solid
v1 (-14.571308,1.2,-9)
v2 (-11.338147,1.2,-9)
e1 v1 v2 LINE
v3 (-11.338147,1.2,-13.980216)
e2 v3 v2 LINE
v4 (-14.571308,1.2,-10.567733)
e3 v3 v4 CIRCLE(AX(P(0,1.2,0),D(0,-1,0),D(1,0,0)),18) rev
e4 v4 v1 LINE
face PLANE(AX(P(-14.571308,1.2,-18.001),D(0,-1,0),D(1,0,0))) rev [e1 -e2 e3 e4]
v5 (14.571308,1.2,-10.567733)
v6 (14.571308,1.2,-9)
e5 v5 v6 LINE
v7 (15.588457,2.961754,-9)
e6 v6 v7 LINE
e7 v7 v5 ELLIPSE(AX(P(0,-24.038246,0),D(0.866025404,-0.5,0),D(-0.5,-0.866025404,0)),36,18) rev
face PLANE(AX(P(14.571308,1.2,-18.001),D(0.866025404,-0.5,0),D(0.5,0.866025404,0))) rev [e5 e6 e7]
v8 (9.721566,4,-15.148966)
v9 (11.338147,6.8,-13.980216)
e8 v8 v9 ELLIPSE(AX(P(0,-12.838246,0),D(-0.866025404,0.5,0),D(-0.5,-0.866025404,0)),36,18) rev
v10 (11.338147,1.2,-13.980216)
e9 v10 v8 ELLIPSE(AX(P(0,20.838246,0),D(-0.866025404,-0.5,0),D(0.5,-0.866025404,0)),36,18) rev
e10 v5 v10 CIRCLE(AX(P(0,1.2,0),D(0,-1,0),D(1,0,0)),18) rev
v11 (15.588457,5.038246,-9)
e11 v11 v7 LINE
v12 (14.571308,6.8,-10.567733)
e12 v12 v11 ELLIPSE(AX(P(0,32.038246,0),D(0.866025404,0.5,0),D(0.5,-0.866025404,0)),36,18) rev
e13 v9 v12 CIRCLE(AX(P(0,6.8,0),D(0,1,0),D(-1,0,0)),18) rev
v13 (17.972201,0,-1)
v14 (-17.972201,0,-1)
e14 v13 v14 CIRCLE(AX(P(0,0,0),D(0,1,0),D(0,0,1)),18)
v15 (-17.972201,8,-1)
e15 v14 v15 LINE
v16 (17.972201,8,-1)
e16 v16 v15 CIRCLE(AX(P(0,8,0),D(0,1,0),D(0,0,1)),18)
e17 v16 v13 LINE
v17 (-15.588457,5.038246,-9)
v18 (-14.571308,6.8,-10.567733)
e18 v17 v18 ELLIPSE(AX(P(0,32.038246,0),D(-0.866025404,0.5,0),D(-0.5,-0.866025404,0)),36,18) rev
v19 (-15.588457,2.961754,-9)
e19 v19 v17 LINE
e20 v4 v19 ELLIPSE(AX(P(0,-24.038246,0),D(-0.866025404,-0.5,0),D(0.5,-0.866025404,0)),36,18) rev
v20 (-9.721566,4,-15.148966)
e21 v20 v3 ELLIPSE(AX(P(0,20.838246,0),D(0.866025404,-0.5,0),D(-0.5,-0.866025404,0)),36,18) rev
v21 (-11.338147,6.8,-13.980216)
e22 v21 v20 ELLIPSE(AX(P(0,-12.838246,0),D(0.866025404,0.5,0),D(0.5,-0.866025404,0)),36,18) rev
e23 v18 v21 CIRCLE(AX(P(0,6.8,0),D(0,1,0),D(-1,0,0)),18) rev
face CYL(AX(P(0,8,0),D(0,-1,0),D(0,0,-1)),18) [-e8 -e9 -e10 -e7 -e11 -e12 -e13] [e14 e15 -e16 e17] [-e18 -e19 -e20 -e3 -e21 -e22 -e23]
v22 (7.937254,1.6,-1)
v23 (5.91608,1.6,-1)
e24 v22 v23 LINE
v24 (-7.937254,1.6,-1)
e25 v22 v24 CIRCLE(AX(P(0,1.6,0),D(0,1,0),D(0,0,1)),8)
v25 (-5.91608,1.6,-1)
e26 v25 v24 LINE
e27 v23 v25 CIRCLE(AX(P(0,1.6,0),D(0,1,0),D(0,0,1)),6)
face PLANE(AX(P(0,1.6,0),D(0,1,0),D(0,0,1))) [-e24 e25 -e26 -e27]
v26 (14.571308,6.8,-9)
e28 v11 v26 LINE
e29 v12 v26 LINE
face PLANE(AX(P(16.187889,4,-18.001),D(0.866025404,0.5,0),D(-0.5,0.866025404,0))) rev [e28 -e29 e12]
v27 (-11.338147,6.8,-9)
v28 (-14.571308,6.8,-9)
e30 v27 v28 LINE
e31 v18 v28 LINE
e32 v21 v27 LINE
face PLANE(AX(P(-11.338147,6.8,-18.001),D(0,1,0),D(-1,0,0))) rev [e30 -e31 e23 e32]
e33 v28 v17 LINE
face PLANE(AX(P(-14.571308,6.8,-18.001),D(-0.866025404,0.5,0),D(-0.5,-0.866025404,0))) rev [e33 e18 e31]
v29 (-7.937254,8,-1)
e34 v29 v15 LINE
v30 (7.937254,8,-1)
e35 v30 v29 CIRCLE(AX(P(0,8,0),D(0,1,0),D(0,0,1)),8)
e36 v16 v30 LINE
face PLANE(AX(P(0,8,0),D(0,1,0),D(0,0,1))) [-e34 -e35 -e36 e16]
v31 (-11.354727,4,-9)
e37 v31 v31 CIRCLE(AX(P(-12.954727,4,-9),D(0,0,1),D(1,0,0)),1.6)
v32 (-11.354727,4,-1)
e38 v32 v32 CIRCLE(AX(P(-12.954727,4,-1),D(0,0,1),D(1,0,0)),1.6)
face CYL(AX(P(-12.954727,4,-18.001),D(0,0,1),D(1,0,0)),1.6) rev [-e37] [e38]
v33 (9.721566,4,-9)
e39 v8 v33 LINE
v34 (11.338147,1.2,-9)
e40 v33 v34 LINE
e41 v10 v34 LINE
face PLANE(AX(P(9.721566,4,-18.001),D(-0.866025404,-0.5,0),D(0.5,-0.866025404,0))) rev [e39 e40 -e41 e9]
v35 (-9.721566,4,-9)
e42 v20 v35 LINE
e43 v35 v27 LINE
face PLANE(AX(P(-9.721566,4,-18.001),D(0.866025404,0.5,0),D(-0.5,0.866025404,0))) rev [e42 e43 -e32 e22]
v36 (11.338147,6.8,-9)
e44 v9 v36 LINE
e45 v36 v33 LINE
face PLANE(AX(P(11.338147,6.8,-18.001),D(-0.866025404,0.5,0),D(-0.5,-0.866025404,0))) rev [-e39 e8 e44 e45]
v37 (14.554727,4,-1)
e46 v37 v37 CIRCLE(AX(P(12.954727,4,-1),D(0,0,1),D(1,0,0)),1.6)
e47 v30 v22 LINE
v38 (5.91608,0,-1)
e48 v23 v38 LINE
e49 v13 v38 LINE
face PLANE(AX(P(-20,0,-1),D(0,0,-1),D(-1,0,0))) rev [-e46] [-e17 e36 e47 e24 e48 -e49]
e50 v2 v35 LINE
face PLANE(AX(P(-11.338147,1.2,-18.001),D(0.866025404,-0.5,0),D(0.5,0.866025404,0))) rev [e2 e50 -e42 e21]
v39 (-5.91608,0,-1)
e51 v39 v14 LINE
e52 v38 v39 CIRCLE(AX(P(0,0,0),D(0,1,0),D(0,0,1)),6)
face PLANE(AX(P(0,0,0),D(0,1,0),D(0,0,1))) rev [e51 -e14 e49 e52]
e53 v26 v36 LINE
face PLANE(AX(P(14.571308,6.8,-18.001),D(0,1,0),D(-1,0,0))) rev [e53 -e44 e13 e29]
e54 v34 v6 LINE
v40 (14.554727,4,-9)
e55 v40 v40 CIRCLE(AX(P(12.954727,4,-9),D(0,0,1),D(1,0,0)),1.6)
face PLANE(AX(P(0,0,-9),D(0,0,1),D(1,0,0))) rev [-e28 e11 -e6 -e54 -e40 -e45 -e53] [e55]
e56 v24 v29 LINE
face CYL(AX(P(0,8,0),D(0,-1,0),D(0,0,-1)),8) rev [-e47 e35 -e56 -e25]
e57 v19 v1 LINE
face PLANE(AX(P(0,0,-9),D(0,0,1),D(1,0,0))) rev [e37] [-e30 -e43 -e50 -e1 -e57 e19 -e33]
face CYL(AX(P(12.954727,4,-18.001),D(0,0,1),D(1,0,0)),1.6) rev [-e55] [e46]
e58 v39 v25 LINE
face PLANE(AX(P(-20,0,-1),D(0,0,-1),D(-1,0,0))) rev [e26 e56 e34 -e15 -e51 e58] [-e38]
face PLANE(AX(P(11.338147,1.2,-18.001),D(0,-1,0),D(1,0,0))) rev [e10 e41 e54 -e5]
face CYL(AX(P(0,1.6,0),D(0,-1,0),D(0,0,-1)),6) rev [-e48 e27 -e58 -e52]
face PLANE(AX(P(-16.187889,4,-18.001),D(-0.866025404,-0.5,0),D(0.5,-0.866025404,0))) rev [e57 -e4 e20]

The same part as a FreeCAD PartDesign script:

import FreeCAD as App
import Part
import Sketcher
from FreeCAD import Vector
Q = App.Units.Quantity


def add_polygon(sketch, points):
    """Adds a closed chain of lines whose ends are joined by coincident constraints."""
    first, n = sketch.GeometryCount, len(points)
    for a, b in zip(points, points[1:] + points[:1]):
        sketch.addGeometry(Part.LineSegment(App.Vector(*a, 0), App.Vector(*b, 0)), False)
    for i in range(n):
        sketch.addConstraint(Sketcher.Constraint("Coincident", first + i, 2, first + (i + 1) % n, 1))

doc = App.newDocument("Part")
params = doc.addObject("Spreadsheet::Sheet", "Params")
for row, (alias, value) in enumerate([
    ("sketch1_diameter", "36 mm"),
    ("sketch1_diameter2", "16 mm"),
    ("pad1_length", "8 mm"),
    ("sketch2_diameter", "16 mm"),
    ("sketch2_diameter2", "12 mm"),
    ("pad2_length", "1.6 mm"),
    ("sketch3_width", "40 mm"),
    ("sketch3_height", "20 mm"),
    ("sketch4_diameter", "3.2 mm"),
    ("sketch5_diameter", "3.2 mm"),
    ("pocket4_length", "6.148966 mm"),
    ("pocket5_length", "6.148966 mm"),
], start=1):
    params.set(f"A{row}", alias)
    params.set(f"B{row}", "=" + value)
    params.setAlias(f"B{row}", alias)

body = doc.addObject("PartDesign::Body", "Body")

sketch1 = body.newObject("Sketcher::SketchObject", "Sketch")
sketch1.AttachmentSupport = (doc.getObject("XZ_Plane"), [""])
sketch1.MapMode = "FlatFace"
sketch1.addGeometry([
    Part.Circle(Vector(0, 0, 0), Vector(0, 0, 1), 18),
    Part.Circle(Vector(0, 0, 0), Vector(0, 0, 1), 8),
], False)
sketch1.addConstraint([
    Sketcher.Constraint("Coincident", 0, 3, -1, 1),
    Sketcher.Constraint("Coincident", 1, 3, -1, 1),
    Sketcher.Constraint("Diameter", 0, Q("36 mm")),
    Sketcher.Constraint("Diameter", 1, Q("16 mm")),
])
sketch1.setExpression("Constraints[2]", "Params.sketch1_diameter")
sketch1.setExpression("Constraints[3]", "Params.sketch1_diameter2")
pad1 = body.newObject("PartDesign::Pad", "Pad")
pad1.Profile = sketch1
pad1.setExpression("Length", "Params.pad1_length")
pad1.Reversed = True

sketch2 = body.newObject("Sketcher::SketchObject", "Sketch001")
sketch2.AttachmentSupport = (doc.getObject("XZ_Plane"), [""])
sketch2.MapMode = "FlatFace"
sketch2.addGeometry([
    Part.Circle(Vector(0, 0, 0), Vector(0, 0, 1), 8),
    Part.Circle(Vector(0, 0, 0), Vector(0, 0, 1), 6),
], False)
sketch2.addConstraint([
    Sketcher.Constraint("Coincident", 0, 3, -1, 1),
    Sketcher.Constraint("Coincident", 1, 3, -1, 1),
    Sketcher.Constraint("Diameter", 0, Q("16 mm")),
    Sketcher.Constraint("Diameter", 1, Q("12 mm")),
])
sketch2.setExpression("Constraints[2]", "Params.sketch2_diameter")
sketch2.setExpression("Constraints[3]", "Params.sketch2_diameter2")
pad2 = body.newObject("PartDesign::Pad", "Pad001")
pad2.Profile = sketch2
pad2.setExpression("Length", "Params.pad2_length")
pad2.Reversed = True

sketch3 = body.newObject("Sketcher::SketchObject", "Sketch002")
sketch3.AttachmentSupport = (doc.getObject("XZ_Plane"), [""])
sketch3.MapMode = "FlatFace"
sketch3.AttachmentOffset = App.Placement(Vector(0, 0, -8), App.Rotation())
add_polygon(sketch3, [(-20, -1), (-20, 19), (20, 19), (20, -1)])
sketch3.addConstraint([
    Sketcher.Constraint("Vertical", 0),
    Sketcher.Constraint("Horizontal", 1),
    Sketcher.Constraint("Vertical", 2),
    Sketcher.Constraint("Horizontal", 3),
    Sketcher.Constraint("DistanceX", 1, 1, 1, 2, Q("40 mm")),
    Sketcher.Constraint("DistanceY", 0, 1, 0, 2, Q("20 mm")),
    Sketcher.Constraint("DistanceX", 0, 2, -1, 1, Q("20 mm")),
    Sketcher.Constraint("DistanceY", -1, 1, 0, 2, Q("19 mm")),
])
sketch3.setExpression("Constraints[8]", "Params.sketch3_width")
sketch3.setExpression("Constraints[9]", "Params.sketch3_height")
pocket1 = body.newObject("PartDesign::Pocket", "Pocket")
pocket1.Profile = sketch3
pocket1.Type = "ThroughAll"
pocket1.Reversed = True

sketch4 = body.newObject("Sketcher::SketchObject", "Sketch003")
sketch4.AttachmentSupport = (doc.getObject("XY_Plane"), [""])
sketch4.MapMode = "FlatFace"
sketch4.AttachmentOffset = App.Placement(Vector(0, 0, -1), App.Rotation())
sketch4.addGeometry(Part.Circle(Vector(-13, 4, 0), Vector(0, 0, 1), 1.6), False)
sketch4.addConstraint([
    Sketcher.Constraint("Diameter", 0, Q("3.2 mm")),
    Sketcher.Constraint("DistanceY", -1, 1, 0, 3, Q("4 mm")),
    Sketcher.Constraint("DistanceX", 0, 3, -1, 1, Q("12.954727 mm")),
])
sketch4.setExpression("Constraints[0]", "Params.sketch4_diameter")
pocket2 = body.newObject("PartDesign::Pocket", "Pocket001")
pocket2.Profile = sketch4
pocket2.Type = "UpToFirst"

sketch5 = body.newObject("Sketcher::SketchObject", "Sketch004")
sketch5.AttachmentSupport = (doc.getObject("XY_Plane"), [""])
sketch5.MapMode = "FlatFace"
sketch5.AttachmentOffset = App.Placement(Vector(0, 0, -1), App.Rotation())
sketch5.addGeometry(Part.Circle(Vector(13, 4, 0), Vector(0, 0, 1), 1.6), False)
sketch5.addConstraint([
    Sketcher.Constraint("Diameter", 0, Q("3.2 mm")),
    Sketcher.Constraint("DistanceY", -1, 1, 0, 3, Q("4 mm")),
    Sketcher.Constraint("DistanceX", -1, 1, 0, 3, Q("12.954727 mm")),
])
sketch5.setExpression("Constraints[0]", "Params.sketch5_diameter")
pocket3 = body.newObject("PartDesign::Pocket", "Pocket002")
pocket3.Profile = sketch5
pocket3.Type = "UpToFirst"

sketch6 = body.newObject("Sketcher::SketchObject", "Sketch005")
sketch6.AttachmentSupport = (doc.getObject("XY_Plane"), [""])
sketch6.MapMode = "FlatFace"
sketch6.AttachmentOffset = App.Placement(Vector(0, 0, -9), App.Rotation())
add_polygon(sketch6, [(-9.7, 4), (-11.3, 6.8), (-14.6, 6.8), (-16.2, 4), (-14.6, 1.2), (-11.3, 1.2)])
sketch6.addConstraint([
    Sketcher.Constraint("Horizontal", 1),
    Sketcher.Constraint("Horizontal", 4),
    Sketcher.Constraint("Parallel", 0, 3),
    Sketcher.Constraint("Parallel", 2, 5),
    Sketcher.Constraint("Horizontal", 2, 2, 5, 2),
    Sketcher.Constraint("Vertical", 1, 2, 3, 2),
    Sketcher.Constraint("Vertical", 0, 2, 4, 2),
    Sketcher.Constraint("Angle", 0, Q("120 deg")),
    Sketcher.Constraint("DistanceY", -1, 1, 2, 2, Q("4 mm")),
    Sketcher.Constraint("DistanceY", -1, 1, 0, 2, Q("6.8 mm")),
    Sketcher.Constraint("DistanceX", 1, 2, 1, 1, Q("3.233162 mm")),
    Sketcher.Constraint("DistanceX", 1, 2, -1, 1, Q("14.571308 mm")),
])
pocket4 = body.newObject("PartDesign::Pocket", "Pocket003")
pocket4.Profile = sketch6
pocket4.setExpression("Length", "Params.pocket4_length")

sketch7 = body.newObject("Sketcher::SketchObject", "Sketch006")
sketch7.AttachmentSupport = (doc.getObject("XY_Plane"), [""])
sketch7.MapMode = "FlatFace"
sketch7.AttachmentOffset = App.Placement(Vector(0, 0, -9), App.Rotation())
add_polygon(sketch7, [(16.2, 4), (14.6, 6.8), (11.3, 6.8), (9.7, 4), (11.3, 1.2), (14.6, 1.2)])
sketch7.addConstraint([
    Sketcher.Constraint("Horizontal", 1),
    Sketcher.Constraint("Horizontal", 4),
    Sketcher.Constraint("Parallel", 0, 3),
    Sketcher.Constraint("Parallel", 2, 5),
    Sketcher.Constraint("Horizontal", 2, 2, 5, 2),
    Sketcher.Constraint("Vertical", 1, 2, 3, 2),
    Sketcher.Constraint("Vertical", 0, 2, 4, 2),
    Sketcher.Constraint("Angle", 0, Q("120 deg")),
    Sketcher.Constraint("DistanceY", -1, 1, 2, 2, Q("4 mm")),
    Sketcher.Constraint("DistanceY", -1, 1, 0, 2, Q("6.8 mm")),
    Sketcher.Constraint("DistanceX", 1, 2, 1, 1, Q("3.233162 mm")),
    Sketcher.Constraint("DistanceX", -1, 1, 0, 2, Q("14.571308 mm")),
])
pocket5 = body.newObject("PartDesign::Pocket", "Pocket004")
pocket5.Profile = sketch7
pocket5.setExpression("Length", "Params.pocket5_length")

doc.recompute()
